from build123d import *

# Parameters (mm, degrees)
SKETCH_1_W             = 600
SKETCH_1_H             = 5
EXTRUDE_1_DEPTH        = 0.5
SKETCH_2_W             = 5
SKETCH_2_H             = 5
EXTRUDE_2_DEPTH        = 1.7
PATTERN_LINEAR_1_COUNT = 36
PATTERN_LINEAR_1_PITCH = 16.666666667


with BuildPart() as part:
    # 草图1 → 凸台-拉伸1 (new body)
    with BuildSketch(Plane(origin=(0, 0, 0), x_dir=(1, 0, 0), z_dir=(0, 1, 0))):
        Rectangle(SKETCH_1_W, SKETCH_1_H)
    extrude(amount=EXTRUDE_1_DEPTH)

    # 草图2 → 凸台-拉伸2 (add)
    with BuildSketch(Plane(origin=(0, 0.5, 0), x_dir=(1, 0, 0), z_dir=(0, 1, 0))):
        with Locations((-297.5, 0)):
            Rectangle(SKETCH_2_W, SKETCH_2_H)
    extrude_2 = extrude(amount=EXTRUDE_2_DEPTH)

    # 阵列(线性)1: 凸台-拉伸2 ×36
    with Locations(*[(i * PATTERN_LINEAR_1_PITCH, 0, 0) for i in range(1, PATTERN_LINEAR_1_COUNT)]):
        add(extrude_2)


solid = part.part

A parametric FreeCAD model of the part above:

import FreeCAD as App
import Part
import Sketcher
from FreeCAD import Vector
Q = App.Units.Quantity


def add_polygon(sketch, points):
    """Adds a closed chain of lines whose ends are joined by coincident constraints."""
    first, n = sketch.GeometryCount, len(points)
    for a, b in zip(points, points[1:] + points[:1]):
        sketch.addGeometry(Part.LineSegment(App.Vector(*a, 0), App.Vector(*b, 0)), False)
    for i in range(n):
        sketch.addConstraint(Sketcher.Constraint("Coincident", first + i, 2, first + (i + 1) % n, 1))

doc = App.newDocument("Part")
body = doc.addObject("PartDesign::Body", "Body")

# Sketch on XZ plane
sketch1 = doc.addObject("Sketcher::SketchObject", "Sketch")
body.addObject(sketch1)
sketch1.AttachmentSupport = (doc.XZ_Plane, [""])
sketch1.MapMode = "FlatFace"
add_polygon(sketch1, [(-300, -2), (-300, 2), (300, 2), (300, -2)])  # lines 0-3
sketch1.addConstraint([
    Sketcher.Constraint("Vertical", 0),
    Sketcher.Constraint("Horizontal", 1),
    Sketcher.Constraint("Vertical", 2),
    Sketcher.Constraint("Horizontal", 3),
    Sketcher.Constraint("Symmetric", 0, 2, 2, 2, -1, 1),
    Sketcher.Constraint("DistanceX", 1, 1, 1, 2, Q("600 mm")),
    Sketcher.Constraint("DistanceY", 0, 1, 0, 2, Q("5 mm")),
])
pad1 = doc.addObject("PartDesign::Pad", "Pad")
body.addObject(pad1)
pad1.Profile = sketch1
pad1.Length = 0.5
pad1.Reversed = True

# Sketch on XZ plane
sketch2 = doc.addObject("Sketcher::SketchObject", "Sketch001")
body.addObject(sketch2)
sketch2.AttachmentSupport = (doc.XZ_Plane, [""])
sketch2.MapMode = "FlatFace"
sketch2.AttachmentOffset = App.Placement(Vector(0, 0, -0.5), App.Rotation())
add_polygon(sketch2, [(-300, -2), (-300, 2), (-295, 2), (-295, -2)])  # lines 0-3
sketch2.addConstraint([
    Sketcher.Constraint("Vertical", 0),
    Sketcher.Constraint("Horizontal", 1),
    Sketcher.Constraint("Vertical", 2),
    Sketcher.Constraint("Horizontal", 3),
    Sketcher.Constraint("Equal", 3, 0),
    Sketcher.Constraint("DistanceX", 1, 1, 1, 2, Q("5 mm")),
    Sketcher.Constraint("DistanceX", 0, 2, -1, 1, Q("300 mm")),
    Sketcher.Constraint("DistanceY", -1, 1, 0, 2, Q("2.5 mm")),
])
pad2 = doc.addObject("PartDesign::Pad", "Pad001")
body.addObject(pad2)
pad2.Profile = sketch2
pad2.Length = 1.7
pad2.Reversed = True
doc.recompute()

linearpattern = doc.addObject("PartDesign::LinearPattern", "LinearPattern")
body.addObject(linearpattern)
linearpattern.Originals = [pad2]
linearpattern.Direction = (doc.X_Axis, [""])
linearpattern.Mode = "offset"
linearpattern.Offset = 16.666667
linearpattern.Occurrences = 36
body.Tip = linearpattern

doc.recompute()
